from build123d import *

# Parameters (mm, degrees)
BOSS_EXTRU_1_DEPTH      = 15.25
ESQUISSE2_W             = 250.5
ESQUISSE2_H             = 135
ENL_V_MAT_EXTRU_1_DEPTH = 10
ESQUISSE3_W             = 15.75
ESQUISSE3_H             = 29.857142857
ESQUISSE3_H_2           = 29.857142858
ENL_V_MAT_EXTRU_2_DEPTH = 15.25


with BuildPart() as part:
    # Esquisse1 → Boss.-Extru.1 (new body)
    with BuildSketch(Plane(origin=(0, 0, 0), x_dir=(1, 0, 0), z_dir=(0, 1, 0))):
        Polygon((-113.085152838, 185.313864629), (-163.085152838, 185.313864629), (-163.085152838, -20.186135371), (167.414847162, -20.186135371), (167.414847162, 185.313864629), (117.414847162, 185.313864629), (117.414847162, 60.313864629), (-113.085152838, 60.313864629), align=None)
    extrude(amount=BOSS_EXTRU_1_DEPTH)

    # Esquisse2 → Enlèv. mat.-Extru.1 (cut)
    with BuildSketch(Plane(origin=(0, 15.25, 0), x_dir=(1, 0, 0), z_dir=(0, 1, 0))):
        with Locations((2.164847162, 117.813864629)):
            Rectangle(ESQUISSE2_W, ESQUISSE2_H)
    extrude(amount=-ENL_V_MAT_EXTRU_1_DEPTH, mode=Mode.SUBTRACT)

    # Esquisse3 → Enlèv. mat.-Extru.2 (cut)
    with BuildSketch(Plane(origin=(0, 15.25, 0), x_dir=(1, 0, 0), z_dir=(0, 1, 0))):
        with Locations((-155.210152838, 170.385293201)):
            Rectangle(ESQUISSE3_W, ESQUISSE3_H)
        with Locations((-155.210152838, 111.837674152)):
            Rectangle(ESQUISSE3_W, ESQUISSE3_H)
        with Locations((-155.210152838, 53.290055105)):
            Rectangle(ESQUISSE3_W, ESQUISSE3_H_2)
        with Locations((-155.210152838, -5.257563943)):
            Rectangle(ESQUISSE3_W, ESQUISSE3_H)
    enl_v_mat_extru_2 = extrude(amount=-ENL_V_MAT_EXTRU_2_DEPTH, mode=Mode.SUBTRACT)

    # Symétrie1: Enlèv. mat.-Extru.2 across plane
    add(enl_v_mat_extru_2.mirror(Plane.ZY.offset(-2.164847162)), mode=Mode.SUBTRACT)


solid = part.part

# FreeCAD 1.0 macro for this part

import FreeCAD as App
import Part
import Sketcher

V = App.Vector
Q = App.Units.Quantity

doc = App.newDocument("Part")
params = doc.addObject("Spreadsheet::Sheet", "Params")
for row, (alias, value) in enumerate([
    ("sketch1_width", "50 mm"),
    ("sketch1_height", "125 mm"),
    ("sketch1_width2", "330.5 mm"),
    ("sketch1_height2", "205.5 mm"),
    ("pad1_length", "15.25 mm"),
    ("sketch2_height", "135 mm"),
    ("sketch2_width", "250.5 mm"),
    ("pocket1_length", "10 mm"),
    ("sketch3_width", "15.75 mm"),
    ("pocket2_length", "15.25 mm"),
], start=1):
    params.set(f"A{row}", alias)
    params.set(f"B{row}", "=" + value)
    params.setAlias(f"B{row}", alias)

body = doc.addObject("PartDesign::Body", "Body")

# Sketch on XZ plane
sketch1 = body.newObject("Sketcher::SketchObject", "Sketch")
sketch1.AttachmentSupport = (doc.getObject("XZ_Plane"), [""])
sketch1.MapMode = "FlatFace"
sketch1.addGeometry(Part.LineSegment(V(-113, -185, 0), V(-163, -185, 0)), False)
sketch1.addGeometry(Part.LineSegment(V(-163, -185, 0), V(-163, 20, 0)), False)
sketch1.addGeometry(Part.LineSegment(V(-163, 20, 0), V(167, 20, 0)), False)
sketch1.addGeometry(Part.LineSegment(V(167, 20, 0), V(167, -185, 0)), False)
sketch1.addGeometry(Part.LineSegment(V(167, -185, 0), V(117, -185, 0)), False)
sketch1.addGeometry(Part.LineSegment(V(117, -185, 0), V(117, -60, 0)), False)
sketch1.addGeometry(Part.LineSegment(V(117, -60, 0), V(-113, -60, 0)), False)
sketch1.addGeometry(Part.LineSegment(V(-113, -60, 0), V(-113, -185, 0)), False)
sketch1.addConstraint(Sketcher.Constraint("Coincident", 0, 2, 1, 1))
sketch1.addConstraint(Sketcher.Constraint("Coincident", 1, 2, 2, 1))
sketch1.addConstraint(Sketcher.Constraint("Coincident", 2, 2, 3, 1))
sketch1.addConstraint(Sketcher.Constraint("Coincident", 3, 2, 4, 1))
sketch1.addConstraint(Sketcher.Constraint("Coincident", 4, 2, 5, 1))
sketch1.addConstraint(Sketcher.Constraint("Coincident", 5, 2, 6, 1))
sketch1.addConstraint(Sketcher.Constraint("Coincident", 6, 2, 7, 1))
sketch1.addConstraint(Sketcher.Constraint("Coincident", 7, 2, 0, 1))
sketch1.addConstraint(Sketcher.Constraint("Horizontal", 0))
sketch1.addConstraint(Sketcher.Constraint("Vertical", 1))
sketch1.addConstraint(Sketcher.Constraint("Horizontal", 2))
sketch1.addConstraint(Sketcher.Constraint("Vertical", 3))
sketch1.addConstraint(Sketcher.Constraint("Horizontal", 4))
sketch1.addConstraint(Sketcher.Constraint("Vertical", 5))
sketch1.addConstraint(Sketcher.Constraint("Horizontal", 6))
sketch1.addConstraint(Sketcher.Constraint("Vertical", 7))
sketch1.addConstraint(Sketcher.Constraint("Horizontal", 0, 2, 3, 2))
sketch1.addConstraint(Sketcher.Constraint("Equal", 0, 4))
sketch1.addConstraint(Sketcher.Constraint("DistanceX", 0, 2, 0, 1, Q("50 mm")))
sketch1.addConstraint(Sketcher.Constraint("DistanceY", 5, 1, 5, 2, Q("125 mm")))
sketch1.addConstraint(Sketcher.Constraint("DistanceX", 2, 1, 2, 2, Q("330.5 mm")))
sketch1.addConstraint(Sketcher.Constraint("DistanceY", 1, 1, 1, 2, Q("205.5 mm")))
sketch1.addConstraint(Sketcher.Constraint("DistanceX", 0, 2, -1, 1, Q("163.085153 mm")))
sketch1.addConstraint(Sketcher.Constraint("DistanceY", 0, 2, -1, 1, Q("185.313865 mm")))
sketch1.setExpression("Constraints[18]", "Params.sketch1_width")
sketch1.setExpression("Constraints[19]", "Params.sketch1_height")
sketch1.setExpression("Constraints[20]", "Params.sketch1_width2")
sketch1.setExpression("Constraints[21]", "Params.sketch1_height2")
pad1 = body.newObject("PartDesign::Pad", "Pad")
pad1.Profile = sketch1
pad1.setExpression("Length", "Params.pad1_length")
pad1.Reversed = True

# Sketch on XZ plane
sketch2 = body.newObject("Sketcher::SketchObject", "Sketch001")
sketch2.AttachmentSupport = (doc.getObject("XZ_Plane"), [""])
sketch2.MapMode = "FlatFace"
sketch2.AttachmentOffset = App.Placement(V(0, 0, -15.25), App.Rotation())
sketch2.addGeometry(Part.LineSegment(V(-123, -185, 0), V(-123, -50, 0)), False)
sketch2.addGeometry(Part.LineSegment(V(-123, -50, 0), V(127, -50, 0)), False)
sketch2.addGeometry(Part.LineSegment(V(127, -50, 0), V(127, -185, 0)), False)
sketch2.addGeometry(Part.LineSegment(V(127, -185, 0), V(-123, -185, 0)), False)
sketch2.addConstraint(Sketcher.Constraint("Coincident", 0, 2, 1, 1))
sketch2.addConstraint(Sketcher.Constraint("Coincident", 1, 2, 2, 1))
sketch2.addConstraint(Sketcher.Constraint("Coincident", 2, 2, 3, 1))
sketch2.addConstraint(Sketcher.Constraint("Coincident", 3, 2, 0, 1))
sketch2.addConstraint(Sketcher.Constraint("Vertical", 0))
sketch2.addConstraint(Sketcher.Constraint("Horizontal", 1))
sketch2.addConstraint(Sketcher.Constraint("Vertical", 2))
sketch2.addConstraint(Sketcher.Constraint("Horizontal", 3))
sketch2.addConstraint(Sketcher.Constraint("DistanceY", 0, 1, 0, 2, Q("135 mm")))
sketch2.addConstraint(Sketcher.Constraint("DistanceX", 1, 1, 1, 2, Q("250.5 mm")))
sketch2.addConstraint(Sketcher.Constraint("DistanceX", 0, 2, -1, 1, Q("123.085153 mm")))
sketch2.addConstraint(Sketcher.Constraint("DistanceY", 0, 2, -1, 1, Q("50.313865 mm")))
sketch2.setExpression("Constraints[8]", "Params.sketch2_height")
sketch2.setExpression("Constraints[9]", "Params.sketch2_width")
pocket1 = body.newObject("PartDesign::Pocket", "Pocket")
pocket1.Profile = sketch2
pocket1.setExpression("Length", "Params.pocket1_length")
pocket1.Reversed = True

# Sketch on XZ plane
sketch3 = body.newObject("Sketcher::SketchObject", "Sketch002")
sketch3.AttachmentSupport = (doc.getObject("XZ_Plane"), [""])
sketch3.MapMode = "FlatFace"
sketch3.AttachmentOffset = App.Placement(V(0, 0, -15.25), App.Rotation())
sketch3.addGeometry(Part.LineSegment(V(-163, -185, 0), V(-163, -155, 0)), False)
sketch3.addGeometry(Part.LineSegment(V(-163, -155, 0), V(-147, -155, 0)), False)
sketch3.addGeometry(Part.LineSegment(V(-147, -155, 0), V(-147, -185, 0)), False)
sketch3.addGeometry(Part.LineSegment(V(-147, -185, 0), V(-163, -185, 0)), False)
sketch3.addGeometry(Part.LineSegment(V(-163, -127, 0), V(-163, -97, 0)), False)
sketch3.addGeometry(Part.LineSegment(V(-163, -97, 0), V(-147, -97, 0)), False)
sketch3.addGeometry(Part.LineSegment(V(-147, -97, 0), V(-147, -127, 0)), False)
sketch3.addGeometry(Part.LineSegment(V(-147, -127, 0), V(-163, -127, 0)), False)
sketch3.addGeometry(Part.LineSegment(V(-163, -68, 0), V(-163, -38, 0)), False)
sketch3.addGeometry(Part.LineSegment(V(-163, -38, 0), V(-147, -38, 0)), False)
sketch3.addGeometry(Part.LineSegment(V(-147, -38, 0), V(-147, -68, 0)), False)
sketch3.addGeometry(Part.LineSegment(V(-147, -68, 0), V(-163, -68, 0)), False)
sketch3.addGeometry(Part.LineSegment(V(-163, -10, 0), V(-163, 20, 0)), False)
sketch3.addGeometry(Part.LineSegment(V(-163, 20, 0), V(-147, 20, 0)), False)
sketch3.addGeometry(Part.LineSegment(V(-147, 20, 0), V(-147, -10, 0)), False)
sketch3.addGeometry(Part.LineSegment(V(-147, -10, 0), V(-163, -10, 0)), False)
sketch3.addConstraint(Sketcher.Constraint("Coincident", 0, 2, 1, 1))
sketch3.addConstraint(Sketcher.Constraint("Coincident", 1, 2, 2, 1))
sketch3.addConstraint(Sketcher.Constraint("Coincident", 2, 2, 3, 1))
sketch3.addConstraint(Sketcher.Constraint("Coincident", 3, 2, 0, 1))
sketch3.addConstraint(Sketcher.Constraint("Coincident", 4, 2, 5, 1))
sketch3.addConstraint(Sketcher.Constraint("Coincident", 5, 2, 6, 1))
sketch3.addConstraint(Sketcher.Constraint("Coincident", 6, 2, 7, 1))
sketch3.addConstraint(Sketcher.Constraint("Coincident", 7, 2, 4, 1))
sketch3.addConstraint(Sketcher.Constraint("Coincident", 8, 2, 9, 1))
sketch3.addConstraint(Sketcher.Constraint("Coincident", 9, 2, 10, 1))
sketch3.addConstraint(Sketcher.Constraint("Coincident", 10, 2, 11, 1))
sketch3.addConstraint(Sketcher.Constraint("Coincident", 11, 2, 8, 1))
sketch3.addConstraint(Sketcher.Constraint("Coincident", 12, 2, 13, 1))
sketch3.addConstraint(Sketcher.Constraint("Coincident", 13, 2, 14, 1))
sketch3.addConstraint(Sketcher.Constraint("Coincident", 14, 2, 15, 1))
sketch3.addConstraint(Sketcher.Constraint("Coincident", 15, 2, 12, 1))
sketch3.addConstraint(Sketcher.Constraint("Vertical", 0))
sketch3.addConstraint(Sketcher.Constraint("Horizontal", 1))
sketch3.addConstraint(Sketcher.Constraint("Vertical", 2))
sketch3.addConstraint(Sketcher.Constraint("Horizontal", 3))
sketch3.addConstraint(Sketcher.Constraint("Vertical", 4))
sketch3.addConstraint(Sketcher.Constraint("Horizontal", 5))
sketch3.addConstraint(Sketcher.Constraint("Vertical", 6))
sketch3.addConstraint(Sketcher.Constraint("Horizontal", 7))
sketch3.addConstraint(Sketcher.Constraint("Vertical", 8))
sketch3.addConstraint(Sketcher.Constraint("Horizontal", 9))
sketch3.addConstraint(Sketcher.Constraint("Vertical", 10))
sketch3.addConstraint(Sketcher.Constraint("Horizontal", 11))
sketch3.addConstraint(Sketcher.Constraint("Vertical", 12))
sketch3.addConstraint(Sketcher.Constraint("Horizontal", 13))
sketch3.addConstraint(Sketcher.Constraint("Vertical", 14))
sketch3.addConstraint(Sketcher.Constraint("Horizontal", 15))
sketch3.addConstraint(Sketcher.Constraint("Vertical", 3, 2, 4, 2))
sketch3.addConstraint(Sketcher.Constraint("Vertical", 2, 2, 5, 2))
sketch3.addConstraint(Sketcher.Constraint("Vertical", 7, 2, 8, 2))
sketch3.addConstraint(Sketcher.Constraint("Vertical", 6, 2, 9, 2))
sketch3.addConstraint(Sketcher.Constraint("Vertical", 11, 2, 12, 2))
sketch3.addConstraint(Sketcher.Constraint("Vertical", 10, 2, 13, 2))
sketch3.addConstraint(Sketcher.Constraint("Equal", 2, 4))
sketch3.addConstraint(Sketcher.Constraint("Equal", 6, 8))
sketch3.addConstraint(Sketcher.Constraint("Equal", 10, 12))
sketch3.addConstraint(Sketcher.Constraint("DistanceX", 1, 1, 1, 2, Q("15.75 mm")))
sketch3.addConstraint(Sketcher.Constraint("DistanceY", 0, 1, 0, 2, Q("29.857143 mm")))
sketch3.addConstraint(Sketcher.Constraint("DistanceY", 0, 2, -1, 1, Q("155.456722 mm")))
sketch3.addConstraint(Sketcher.Constraint("DistanceY", 0, 2, 4, 2, Q("58.547619 mm")))
sketch3.addConstraint(Sketcher.Constraint("DistanceY", 4, 2, 8, 2, Q("58.547619 mm")))
sketch3.addConstraint(Sketcher.Constraint("DistanceY", 8, 2, 12, 2, Q("58.547619 mm")))
sketch3.addConstraint(Sketcher.Constraint("DistanceX", 0, 2, -1, 1, Q("163.085153 mm")))
sketch3.setExpression("Constraints[41]", "Params.sketch3_width")
pocket2 = body.newObject("PartDesign::Pocket", "Pocket001")
pocket2.Profile = sketch3
pocket2.setExpression("Length", "Params.pocket2_length")
pocket2.Reversed = True
doc.recompute()

datumplane = body.newObject("PartDesign::Plane", "DatumPlane")
datumplane.AttachmentSupport = (doc.getObject("YZ_Plane"), [""])
datumplane.MapMode = "FlatFace"
datumplane.AttachmentOffset = App.Placement(V(0, 0, 2.164847), App.Rotation())
mirrored = body.newObject("PartDesign::Mirrored", "Mirrored")
mirrored.Originals = [pocket2]
mirrored.MirrorPlane = (datumplane, [""])
body.Tip = mirrored

doc.recompute()
